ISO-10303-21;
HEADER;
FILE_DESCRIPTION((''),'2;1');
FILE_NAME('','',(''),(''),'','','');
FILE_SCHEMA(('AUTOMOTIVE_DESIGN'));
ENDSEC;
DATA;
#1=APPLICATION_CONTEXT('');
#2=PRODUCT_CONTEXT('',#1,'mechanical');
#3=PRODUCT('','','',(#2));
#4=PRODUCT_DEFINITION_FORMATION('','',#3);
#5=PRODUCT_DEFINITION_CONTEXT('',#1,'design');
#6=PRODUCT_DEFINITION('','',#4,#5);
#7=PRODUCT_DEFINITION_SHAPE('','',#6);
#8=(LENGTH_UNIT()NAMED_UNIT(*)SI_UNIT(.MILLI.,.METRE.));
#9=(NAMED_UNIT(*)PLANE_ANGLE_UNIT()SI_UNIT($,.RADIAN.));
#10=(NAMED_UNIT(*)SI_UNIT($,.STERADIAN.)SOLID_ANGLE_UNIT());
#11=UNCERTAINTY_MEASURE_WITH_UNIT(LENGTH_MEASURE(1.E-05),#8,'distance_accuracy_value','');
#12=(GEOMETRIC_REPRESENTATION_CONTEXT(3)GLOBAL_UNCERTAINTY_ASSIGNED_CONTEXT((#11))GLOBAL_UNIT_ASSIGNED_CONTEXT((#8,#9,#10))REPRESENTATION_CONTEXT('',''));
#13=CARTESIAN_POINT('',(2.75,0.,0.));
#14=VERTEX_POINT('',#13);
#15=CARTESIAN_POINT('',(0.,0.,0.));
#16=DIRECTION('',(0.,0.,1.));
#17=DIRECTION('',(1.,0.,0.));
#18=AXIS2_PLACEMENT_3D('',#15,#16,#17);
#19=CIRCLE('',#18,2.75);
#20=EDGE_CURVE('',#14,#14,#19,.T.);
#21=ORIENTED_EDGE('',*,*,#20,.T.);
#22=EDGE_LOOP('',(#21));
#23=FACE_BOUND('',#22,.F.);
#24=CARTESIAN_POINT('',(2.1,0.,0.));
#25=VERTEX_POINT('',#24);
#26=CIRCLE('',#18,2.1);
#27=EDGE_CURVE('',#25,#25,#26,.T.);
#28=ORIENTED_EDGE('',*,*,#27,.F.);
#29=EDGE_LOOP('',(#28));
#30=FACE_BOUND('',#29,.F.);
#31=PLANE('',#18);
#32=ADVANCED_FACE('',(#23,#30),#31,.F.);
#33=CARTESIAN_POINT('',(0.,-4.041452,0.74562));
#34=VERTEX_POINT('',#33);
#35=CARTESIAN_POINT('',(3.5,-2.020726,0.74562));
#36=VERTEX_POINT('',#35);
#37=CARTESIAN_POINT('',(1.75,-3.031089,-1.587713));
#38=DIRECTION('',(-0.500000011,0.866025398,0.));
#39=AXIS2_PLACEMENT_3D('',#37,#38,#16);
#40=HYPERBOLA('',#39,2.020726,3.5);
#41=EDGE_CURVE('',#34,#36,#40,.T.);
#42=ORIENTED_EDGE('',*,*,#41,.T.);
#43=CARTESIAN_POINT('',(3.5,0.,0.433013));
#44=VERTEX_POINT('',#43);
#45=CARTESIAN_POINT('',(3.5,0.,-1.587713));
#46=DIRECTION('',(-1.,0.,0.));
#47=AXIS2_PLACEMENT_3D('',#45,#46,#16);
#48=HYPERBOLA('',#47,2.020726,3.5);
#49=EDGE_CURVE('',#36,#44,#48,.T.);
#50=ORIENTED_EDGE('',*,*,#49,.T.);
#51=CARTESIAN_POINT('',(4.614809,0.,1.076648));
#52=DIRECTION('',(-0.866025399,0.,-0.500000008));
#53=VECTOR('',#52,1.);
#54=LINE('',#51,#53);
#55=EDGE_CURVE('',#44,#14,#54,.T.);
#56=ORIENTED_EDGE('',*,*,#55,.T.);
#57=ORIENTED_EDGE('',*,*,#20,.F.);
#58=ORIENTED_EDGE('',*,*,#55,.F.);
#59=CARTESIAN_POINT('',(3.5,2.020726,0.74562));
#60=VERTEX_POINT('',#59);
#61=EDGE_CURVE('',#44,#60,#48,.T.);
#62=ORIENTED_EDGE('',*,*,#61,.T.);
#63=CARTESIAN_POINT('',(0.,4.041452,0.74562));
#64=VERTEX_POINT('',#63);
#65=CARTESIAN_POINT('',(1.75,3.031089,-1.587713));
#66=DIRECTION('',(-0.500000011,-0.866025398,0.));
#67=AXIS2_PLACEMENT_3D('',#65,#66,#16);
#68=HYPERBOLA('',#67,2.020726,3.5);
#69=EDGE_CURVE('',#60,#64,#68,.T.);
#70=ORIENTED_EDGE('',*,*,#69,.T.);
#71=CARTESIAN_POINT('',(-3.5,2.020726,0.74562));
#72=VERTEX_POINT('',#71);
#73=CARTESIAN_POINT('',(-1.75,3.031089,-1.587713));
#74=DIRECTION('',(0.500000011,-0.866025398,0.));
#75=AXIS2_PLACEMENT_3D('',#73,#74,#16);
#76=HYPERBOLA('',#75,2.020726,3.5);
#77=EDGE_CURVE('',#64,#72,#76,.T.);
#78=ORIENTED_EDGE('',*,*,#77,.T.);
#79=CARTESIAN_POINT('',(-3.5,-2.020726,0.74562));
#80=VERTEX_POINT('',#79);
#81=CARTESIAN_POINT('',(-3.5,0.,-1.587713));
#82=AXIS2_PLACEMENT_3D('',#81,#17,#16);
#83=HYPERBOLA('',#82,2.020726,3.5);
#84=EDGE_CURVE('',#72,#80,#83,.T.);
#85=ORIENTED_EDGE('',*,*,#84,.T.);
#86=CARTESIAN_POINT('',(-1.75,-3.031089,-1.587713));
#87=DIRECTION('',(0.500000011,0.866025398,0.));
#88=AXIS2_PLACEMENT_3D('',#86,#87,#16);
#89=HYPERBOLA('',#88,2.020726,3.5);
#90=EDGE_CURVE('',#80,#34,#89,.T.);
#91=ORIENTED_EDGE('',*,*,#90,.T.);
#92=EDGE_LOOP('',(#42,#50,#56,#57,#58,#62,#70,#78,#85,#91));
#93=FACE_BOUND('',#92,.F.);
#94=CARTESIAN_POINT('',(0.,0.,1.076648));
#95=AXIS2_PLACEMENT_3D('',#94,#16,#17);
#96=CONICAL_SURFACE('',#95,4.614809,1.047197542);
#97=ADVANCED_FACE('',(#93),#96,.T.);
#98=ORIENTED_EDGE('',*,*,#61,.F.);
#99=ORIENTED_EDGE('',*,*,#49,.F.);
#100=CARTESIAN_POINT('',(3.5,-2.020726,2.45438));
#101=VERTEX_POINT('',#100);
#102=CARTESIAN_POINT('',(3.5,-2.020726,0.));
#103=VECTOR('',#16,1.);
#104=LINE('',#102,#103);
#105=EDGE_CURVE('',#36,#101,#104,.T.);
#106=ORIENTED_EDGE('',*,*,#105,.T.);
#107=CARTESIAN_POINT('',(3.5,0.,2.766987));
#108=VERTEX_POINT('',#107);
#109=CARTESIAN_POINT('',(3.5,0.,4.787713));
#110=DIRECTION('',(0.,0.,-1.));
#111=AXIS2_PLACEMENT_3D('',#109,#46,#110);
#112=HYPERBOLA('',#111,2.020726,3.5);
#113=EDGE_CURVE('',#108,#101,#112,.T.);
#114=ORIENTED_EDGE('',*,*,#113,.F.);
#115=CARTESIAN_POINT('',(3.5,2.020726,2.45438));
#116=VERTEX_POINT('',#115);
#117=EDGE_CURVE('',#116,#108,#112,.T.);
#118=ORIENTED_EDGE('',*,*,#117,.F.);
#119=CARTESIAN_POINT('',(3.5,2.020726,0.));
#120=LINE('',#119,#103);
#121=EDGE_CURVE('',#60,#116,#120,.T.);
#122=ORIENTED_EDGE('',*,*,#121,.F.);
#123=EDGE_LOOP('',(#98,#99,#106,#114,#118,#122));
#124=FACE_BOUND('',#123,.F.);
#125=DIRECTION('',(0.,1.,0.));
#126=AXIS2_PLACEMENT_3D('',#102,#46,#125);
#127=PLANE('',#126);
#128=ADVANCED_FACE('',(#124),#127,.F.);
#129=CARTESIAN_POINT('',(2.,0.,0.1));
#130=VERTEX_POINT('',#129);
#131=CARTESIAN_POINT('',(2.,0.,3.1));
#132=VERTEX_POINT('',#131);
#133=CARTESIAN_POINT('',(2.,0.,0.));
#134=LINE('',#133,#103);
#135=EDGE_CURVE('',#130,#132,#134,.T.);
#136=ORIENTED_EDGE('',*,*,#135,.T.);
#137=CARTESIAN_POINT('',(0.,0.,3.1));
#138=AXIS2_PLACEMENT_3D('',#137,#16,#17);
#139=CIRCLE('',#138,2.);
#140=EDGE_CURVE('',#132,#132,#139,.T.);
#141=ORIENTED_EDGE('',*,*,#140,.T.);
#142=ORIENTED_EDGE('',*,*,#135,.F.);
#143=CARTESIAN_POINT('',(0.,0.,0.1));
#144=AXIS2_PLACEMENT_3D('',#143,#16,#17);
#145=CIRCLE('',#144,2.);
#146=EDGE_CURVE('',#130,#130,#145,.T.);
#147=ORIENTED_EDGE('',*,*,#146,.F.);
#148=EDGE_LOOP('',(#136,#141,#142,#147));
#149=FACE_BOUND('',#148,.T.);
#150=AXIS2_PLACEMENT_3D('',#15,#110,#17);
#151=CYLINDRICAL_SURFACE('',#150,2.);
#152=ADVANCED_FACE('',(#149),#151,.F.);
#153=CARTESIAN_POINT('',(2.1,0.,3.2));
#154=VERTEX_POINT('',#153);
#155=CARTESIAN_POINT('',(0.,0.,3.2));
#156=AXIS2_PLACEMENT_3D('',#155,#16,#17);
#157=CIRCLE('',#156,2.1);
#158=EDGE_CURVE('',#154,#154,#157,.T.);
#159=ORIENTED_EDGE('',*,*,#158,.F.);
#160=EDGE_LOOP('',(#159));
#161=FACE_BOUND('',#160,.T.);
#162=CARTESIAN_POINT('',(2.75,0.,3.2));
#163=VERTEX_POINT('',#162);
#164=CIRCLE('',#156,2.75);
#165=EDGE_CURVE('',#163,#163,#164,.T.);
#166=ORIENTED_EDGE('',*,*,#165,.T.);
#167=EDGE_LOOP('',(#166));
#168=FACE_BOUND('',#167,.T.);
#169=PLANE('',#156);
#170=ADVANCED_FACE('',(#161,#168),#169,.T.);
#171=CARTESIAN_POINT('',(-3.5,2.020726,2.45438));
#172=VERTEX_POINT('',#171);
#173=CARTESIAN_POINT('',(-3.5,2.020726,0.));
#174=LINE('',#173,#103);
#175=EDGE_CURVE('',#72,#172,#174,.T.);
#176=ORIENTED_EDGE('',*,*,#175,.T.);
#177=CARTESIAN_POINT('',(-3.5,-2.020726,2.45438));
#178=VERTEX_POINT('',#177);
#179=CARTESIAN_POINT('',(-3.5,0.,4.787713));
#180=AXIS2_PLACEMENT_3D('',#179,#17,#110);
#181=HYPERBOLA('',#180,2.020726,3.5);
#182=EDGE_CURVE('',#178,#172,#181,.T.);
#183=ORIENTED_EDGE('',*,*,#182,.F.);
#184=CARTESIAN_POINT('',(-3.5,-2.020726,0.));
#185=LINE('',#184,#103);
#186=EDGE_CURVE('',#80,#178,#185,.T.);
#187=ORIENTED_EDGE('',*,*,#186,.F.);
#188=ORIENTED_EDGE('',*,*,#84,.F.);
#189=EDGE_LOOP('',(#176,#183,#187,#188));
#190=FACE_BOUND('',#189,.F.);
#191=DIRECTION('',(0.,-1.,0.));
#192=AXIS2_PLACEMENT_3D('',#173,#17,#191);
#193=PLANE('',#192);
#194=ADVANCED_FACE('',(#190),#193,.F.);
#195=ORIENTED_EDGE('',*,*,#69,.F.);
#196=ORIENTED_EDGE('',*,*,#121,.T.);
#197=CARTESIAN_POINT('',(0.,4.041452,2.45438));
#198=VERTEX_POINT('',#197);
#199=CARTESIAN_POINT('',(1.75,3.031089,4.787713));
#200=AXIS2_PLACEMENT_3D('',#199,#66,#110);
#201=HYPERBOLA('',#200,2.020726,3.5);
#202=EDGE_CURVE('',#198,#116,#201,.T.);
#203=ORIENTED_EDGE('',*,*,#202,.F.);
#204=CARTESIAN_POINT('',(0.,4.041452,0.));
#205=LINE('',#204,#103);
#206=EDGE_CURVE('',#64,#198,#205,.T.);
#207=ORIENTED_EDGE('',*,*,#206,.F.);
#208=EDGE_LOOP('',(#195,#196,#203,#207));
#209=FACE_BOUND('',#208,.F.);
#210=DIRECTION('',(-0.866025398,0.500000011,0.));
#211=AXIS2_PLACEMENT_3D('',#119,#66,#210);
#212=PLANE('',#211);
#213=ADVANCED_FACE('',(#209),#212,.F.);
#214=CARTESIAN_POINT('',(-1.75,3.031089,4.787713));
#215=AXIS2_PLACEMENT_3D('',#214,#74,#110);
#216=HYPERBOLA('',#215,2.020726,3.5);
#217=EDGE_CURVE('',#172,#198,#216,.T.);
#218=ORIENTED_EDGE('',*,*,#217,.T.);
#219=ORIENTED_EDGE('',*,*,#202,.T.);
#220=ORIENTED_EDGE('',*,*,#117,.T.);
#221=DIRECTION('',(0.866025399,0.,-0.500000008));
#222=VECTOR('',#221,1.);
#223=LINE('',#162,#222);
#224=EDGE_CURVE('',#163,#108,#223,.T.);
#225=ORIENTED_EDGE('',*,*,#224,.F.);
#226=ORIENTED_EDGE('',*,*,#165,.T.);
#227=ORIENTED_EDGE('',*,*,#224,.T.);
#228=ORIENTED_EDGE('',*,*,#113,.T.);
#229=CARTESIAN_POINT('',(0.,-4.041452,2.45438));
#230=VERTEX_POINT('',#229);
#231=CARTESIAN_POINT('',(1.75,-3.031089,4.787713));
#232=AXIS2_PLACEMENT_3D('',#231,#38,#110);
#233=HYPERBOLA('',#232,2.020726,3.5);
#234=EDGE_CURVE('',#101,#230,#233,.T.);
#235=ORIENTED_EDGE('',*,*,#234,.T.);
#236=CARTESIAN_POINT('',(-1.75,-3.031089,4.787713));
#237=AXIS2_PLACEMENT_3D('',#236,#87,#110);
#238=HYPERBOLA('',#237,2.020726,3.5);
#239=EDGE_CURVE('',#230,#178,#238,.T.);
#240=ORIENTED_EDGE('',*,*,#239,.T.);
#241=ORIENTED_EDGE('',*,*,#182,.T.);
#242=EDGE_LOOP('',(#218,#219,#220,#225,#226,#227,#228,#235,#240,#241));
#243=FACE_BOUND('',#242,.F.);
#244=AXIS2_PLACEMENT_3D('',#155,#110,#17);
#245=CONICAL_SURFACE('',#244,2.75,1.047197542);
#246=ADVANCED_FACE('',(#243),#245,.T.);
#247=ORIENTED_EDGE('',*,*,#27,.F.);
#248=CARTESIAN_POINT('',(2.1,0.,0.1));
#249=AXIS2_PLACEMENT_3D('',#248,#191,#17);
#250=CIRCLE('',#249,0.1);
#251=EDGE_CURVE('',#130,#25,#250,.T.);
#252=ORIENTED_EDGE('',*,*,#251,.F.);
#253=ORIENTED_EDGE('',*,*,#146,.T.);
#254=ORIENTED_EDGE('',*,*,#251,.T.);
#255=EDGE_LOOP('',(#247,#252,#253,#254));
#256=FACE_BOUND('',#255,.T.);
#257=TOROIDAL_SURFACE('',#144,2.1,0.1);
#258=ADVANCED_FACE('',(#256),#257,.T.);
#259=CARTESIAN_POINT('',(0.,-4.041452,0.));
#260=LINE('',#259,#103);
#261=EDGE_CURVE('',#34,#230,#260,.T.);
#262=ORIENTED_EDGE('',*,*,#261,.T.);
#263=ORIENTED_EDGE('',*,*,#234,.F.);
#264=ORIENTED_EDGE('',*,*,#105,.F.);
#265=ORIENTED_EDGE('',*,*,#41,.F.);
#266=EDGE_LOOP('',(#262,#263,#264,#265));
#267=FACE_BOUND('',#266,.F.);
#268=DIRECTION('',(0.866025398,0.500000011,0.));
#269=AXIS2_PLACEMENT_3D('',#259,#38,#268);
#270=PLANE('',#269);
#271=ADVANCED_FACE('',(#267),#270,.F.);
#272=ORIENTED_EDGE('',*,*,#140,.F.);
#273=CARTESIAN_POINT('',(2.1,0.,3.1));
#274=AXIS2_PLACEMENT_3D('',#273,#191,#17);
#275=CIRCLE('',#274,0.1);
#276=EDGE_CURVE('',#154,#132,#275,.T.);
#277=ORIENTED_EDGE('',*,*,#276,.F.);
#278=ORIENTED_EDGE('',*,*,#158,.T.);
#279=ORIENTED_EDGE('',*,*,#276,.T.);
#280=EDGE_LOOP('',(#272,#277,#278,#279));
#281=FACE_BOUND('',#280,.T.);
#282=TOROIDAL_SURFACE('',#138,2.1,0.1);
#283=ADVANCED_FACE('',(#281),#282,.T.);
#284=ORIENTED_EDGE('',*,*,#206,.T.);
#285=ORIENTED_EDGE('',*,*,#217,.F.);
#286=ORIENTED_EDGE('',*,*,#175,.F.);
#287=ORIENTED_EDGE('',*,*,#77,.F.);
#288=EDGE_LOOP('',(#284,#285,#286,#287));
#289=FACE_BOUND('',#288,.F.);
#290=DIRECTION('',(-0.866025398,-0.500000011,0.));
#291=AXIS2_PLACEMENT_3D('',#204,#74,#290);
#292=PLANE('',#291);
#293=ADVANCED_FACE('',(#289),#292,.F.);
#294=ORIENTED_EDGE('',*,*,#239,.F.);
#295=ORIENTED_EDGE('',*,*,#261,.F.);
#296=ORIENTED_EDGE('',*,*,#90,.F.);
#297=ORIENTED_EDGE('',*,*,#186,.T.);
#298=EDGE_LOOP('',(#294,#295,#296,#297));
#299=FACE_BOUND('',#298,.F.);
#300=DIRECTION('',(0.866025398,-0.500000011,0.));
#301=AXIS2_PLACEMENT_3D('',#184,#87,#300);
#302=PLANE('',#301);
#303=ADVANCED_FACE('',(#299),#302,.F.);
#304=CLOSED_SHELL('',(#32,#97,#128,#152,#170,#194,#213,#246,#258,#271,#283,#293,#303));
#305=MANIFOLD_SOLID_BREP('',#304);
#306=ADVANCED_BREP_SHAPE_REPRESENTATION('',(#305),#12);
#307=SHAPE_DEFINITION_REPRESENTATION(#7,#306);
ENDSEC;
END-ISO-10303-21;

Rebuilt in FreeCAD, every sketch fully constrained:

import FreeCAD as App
import Part
import Sketcher

V = App.Vector
Q = App.Units.Quantity


def edges_at(feature, points):
    """Names of the edges that pass closest to the given points."""
    edges = feature.Shape.Edges
    near = lambda p: min(range(len(edges)), key=lambda i: edges[i].distToShape(Part.Vertex(*p))[0])
    return sorted({f"Edge{near(p) + 1}" for p in points})

doc = App.newDocument("Part")
body = doc.addObject("PartDesign::Body", "Body")

sketch1 = body.newObject("Sketcher::SketchObject", "Sketch")
sketch1.AttachmentSupport = (doc.getObject("XY_Plane"), [""])
sketch1.MapMode = "FlatFace"
sketch1.addGeometry(Part.LineSegment(V(-3.5, -2, 0), V(0, -4, 0)), False)
sketch1.addGeometry(Part.LineSegment(V(0, -4, 0), V(3.5, -2, 0)), False)
sketch1.addGeometry(Part.LineSegment(V(3.5, -2, 0), V(3.5, 2, 0)), False)
sketch1.addGeometry(Part.LineSegment(V(3.5, 2, 0), V(0, 4, 0)), False)
sketch1.addGeometry(Part.LineSegment(V(0, 4, 0), V(-3.5, 2, 0)), False)
sketch1.addGeometry(Part.LineSegment(V(-3.5, 2, 0), V(-3.5, -2, 0)), False)
sketch1.addGeometry(Part.Circle(V(0, 0, 0), V(0, 0, 1), 2), False)
sketch1.addConstraint(Sketcher.Constraint("Coincident", 0, 2, 1, 1))
sketch1.addConstraint(Sketcher.Constraint("Coincident", 1, 2, 2, 1))
sketch1.addConstraint(Sketcher.Constraint("Coincident", 2, 2, 3, 1))
sketch1.addConstraint(Sketcher.Constraint("Coincident", 3, 2, 4, 1))
sketch1.addConstraint(Sketcher.Constraint("Coincident", 4, 2, 5, 1))
sketch1.addConstraint(Sketcher.Constraint("Coincident", 5, 2, 0, 1))
sketch1.addConstraint(Sketcher.Constraint("Vertical", 2))
sketch1.addConstraint(Sketcher.Constraint("Vertical", 5))
sketch1.addConstraint(Sketcher.Constraint("Coincident", 6, 3, -1, 1))
sketch1.addConstraint(Sketcher.Constraint("Symmetric", 0, 2, 3, 2, -1, 1))
sketch1.addConstraint(Sketcher.Constraint("Symmetric", 1, 2, 4, 2, -1, 1))
sketch1.addConstraint(Sketcher.Constraint("PointOnObject", 0, 2, -2))
sketch1.addConstraint(Sketcher.Constraint("Parallel", 0, 3))
sketch1.addConstraint(Sketcher.Constraint("Horizontal", 2, 2, 4, 2))
sketch1.addConstraint(Sketcher.Constraint("Diameter", 6, Q("4 mm")))
sketch1.addConstraint(Sketcher.Constraint("Angle", 0, Q("-30.000001 deg")))
sketch1.addConstraint(Sketcher.Constraint("DistanceX", 4, 2, 2, 2, Q("7 mm")))
sketch1.addConstraint(Sketcher.Constraint("DistanceY", 2, 1, 2, 2, Q("4.041452 mm")))
pad1 = body.newObject("PartDesign::Pad", "Pad")
pad1.Profile = sketch1
pad1.Length = 3.2

sketch2 = body.newObject("Sketcher::SketchObject", "Sketch001")
sketch2.AttachmentSupport = (doc.getObject("XZ_Plane"), [""])
sketch2.MapMode = "FlatFace"
sketch2.addGeometry(Part.LineSegment(V(2.75, 3.2, 0), V(4.61, 2.12, 0)), False)
sketch2.addGeometry(Part.LineSegment(V(4.61, 2.12, 0), V(4.61, 2.56, 0)), False)
sketch2.addGeometry(Part.LineSegment(V(4.61, 2.56, 0), V(5.36, 2.12, 0)), False)
sketch2.addGeometry(Part.LineSegment(V(5.36, 2.12, 0), V(5.36, 3.2, 0)), False)
sketch2.addGeometry(Part.LineSegment(V(5.36, 3.2, 0), V(2.75, 3.2, 0)), False)
sketch2.addGeometry(Part.LineSegment(V(4.61, 0.64, 0), V(4.61, 1.08, 0)), False)
sketch2.addGeometry(Part.LineSegment(V(4.61, 1.08, 0), V(2.75, 0, 0)), False)
sketch2.addGeometry(Part.LineSegment(V(2.75, 0, 0), V(5.36, 0, 0)), False)
sketch2.addGeometry(Part.LineSegment(V(5.36, 0, 0), V(5.36, 1.08, 0)), False)
sketch2.addGeometry(Part.LineSegment(V(5.36, 1.08, 0), V(4.61, 0.64, 0)), False)
sketch2.addConstraint(Sketcher.Constraint("Coincident", 0, 2, 1, 1))
sketch2.addConstraint(Sketcher.Constraint("Coincident", 1, 2, 2, 1))
sketch2.addConstraint(Sketcher.Constraint("Coincident", 2, 2, 3, 1))
sketch2.addConstraint(Sketcher.Constraint("Coincident", 3, 2, 4, 1))
sketch2.addConstraint(Sketcher.Constraint("Coincident", 4, 2, 0, 1))
sketch2.addConstraint(Sketcher.Constraint("Coincident", 5, 2, 6, 1))
sketch2.addConstraint(Sketcher.Constraint("Coincident", 6, 2, 7, 1))
sketch2.addConstraint(Sketcher.Constraint("Coincident", 7, 2, 8, 1))
sketch2.addConstraint(Sketcher.Constraint("Coincident", 8, 2, 9, 1))
sketch2.addConstraint(Sketcher.Constraint("Coincident", 9, 2, 5, 1))
sketch2.addConstraint(Sketcher.Constraint("Vertical", 1))
sketch2.addConstraint(Sketcher.Constraint("Vertical", 3))
sketch2.addConstraint(Sketcher.Constraint("Horizontal", 4))
sketch2.addConstraint(Sketcher.Constraint("Vertical", 5))
sketch2.addConstraint(Sketcher.Constraint("Horizontal", 7))
sketch2.addConstraint(Sketcher.Constraint("Vertical", 8))
sketch2.addConstraint(Sketcher.Constraint("PointOnObject", 6, 2, -1))
sketch2.addConstraint(Sketcher.Constraint("Parallel", 0, 2))
sketch2.addConstraint(Sketcher.Constraint("Parallel", 6, 9))
sketch2.addConstraint(Sketcher.Constraint("Horizontal", 0, 2, 2, 2))
sketch2.addConstraint(Sketcher.Constraint("Horizontal", 5, 2, 8, 2))
sketch2.addConstraint(Sketcher.Constraint("Vertical", 1, 2, 5, 2))
sketch2.addConstraint(Sketcher.Constraint("Vertical", 4, 2, 6, 2))
sketch2.addConstraint(Sketcher.Constraint("Vertical", 3, 2, 7, 2))
sketch2.addConstraint(Sketcher.Constraint("Equal", 1, 5))
sketch2.addConstraint(Sketcher.Constraint("Angle", 0, Q("-30.000001 deg")))
sketch2.addConstraint(Sketcher.Constraint("DistanceY", -1, 1, 3, 2, Q("3.2 mm")))
sketch2.addConstraint(Sketcher.Constraint("DistanceX", -1, 1, 4, 2, Q("2.75 mm")))
sketch2.addConstraint(Sketcher.Constraint("DistanceX", 0, 2, 2, 2, Q("0.75 mm")))
sketch2.addConstraint(Sketcher.Constraint("DistanceX", 4, 2, 4, 1, Q("2.614809 mm")))
groove = body.newObject("PartDesign::Groove", "Groove")
groove.Profile = sketch2
groove.ReferenceAxis = (sketch2, ["V_Axis"])
groove.Angle = 360
doc.recompute()

fillet = body.newObject("PartDesign::Fillet", "Fillet")
fillet.Base = (groove, edges_at(groove, [(-2, 0, 3.2)]))
fillet.Radius = 0.1
doc.recompute()

fillet2 = body.newObject("PartDesign::Fillet", "Fillet001")
fillet2.Base = (fillet, edges_at(fillet, [(-2, 0, 0)]))
fillet2.Radius = 0.1

doc.recompute()
